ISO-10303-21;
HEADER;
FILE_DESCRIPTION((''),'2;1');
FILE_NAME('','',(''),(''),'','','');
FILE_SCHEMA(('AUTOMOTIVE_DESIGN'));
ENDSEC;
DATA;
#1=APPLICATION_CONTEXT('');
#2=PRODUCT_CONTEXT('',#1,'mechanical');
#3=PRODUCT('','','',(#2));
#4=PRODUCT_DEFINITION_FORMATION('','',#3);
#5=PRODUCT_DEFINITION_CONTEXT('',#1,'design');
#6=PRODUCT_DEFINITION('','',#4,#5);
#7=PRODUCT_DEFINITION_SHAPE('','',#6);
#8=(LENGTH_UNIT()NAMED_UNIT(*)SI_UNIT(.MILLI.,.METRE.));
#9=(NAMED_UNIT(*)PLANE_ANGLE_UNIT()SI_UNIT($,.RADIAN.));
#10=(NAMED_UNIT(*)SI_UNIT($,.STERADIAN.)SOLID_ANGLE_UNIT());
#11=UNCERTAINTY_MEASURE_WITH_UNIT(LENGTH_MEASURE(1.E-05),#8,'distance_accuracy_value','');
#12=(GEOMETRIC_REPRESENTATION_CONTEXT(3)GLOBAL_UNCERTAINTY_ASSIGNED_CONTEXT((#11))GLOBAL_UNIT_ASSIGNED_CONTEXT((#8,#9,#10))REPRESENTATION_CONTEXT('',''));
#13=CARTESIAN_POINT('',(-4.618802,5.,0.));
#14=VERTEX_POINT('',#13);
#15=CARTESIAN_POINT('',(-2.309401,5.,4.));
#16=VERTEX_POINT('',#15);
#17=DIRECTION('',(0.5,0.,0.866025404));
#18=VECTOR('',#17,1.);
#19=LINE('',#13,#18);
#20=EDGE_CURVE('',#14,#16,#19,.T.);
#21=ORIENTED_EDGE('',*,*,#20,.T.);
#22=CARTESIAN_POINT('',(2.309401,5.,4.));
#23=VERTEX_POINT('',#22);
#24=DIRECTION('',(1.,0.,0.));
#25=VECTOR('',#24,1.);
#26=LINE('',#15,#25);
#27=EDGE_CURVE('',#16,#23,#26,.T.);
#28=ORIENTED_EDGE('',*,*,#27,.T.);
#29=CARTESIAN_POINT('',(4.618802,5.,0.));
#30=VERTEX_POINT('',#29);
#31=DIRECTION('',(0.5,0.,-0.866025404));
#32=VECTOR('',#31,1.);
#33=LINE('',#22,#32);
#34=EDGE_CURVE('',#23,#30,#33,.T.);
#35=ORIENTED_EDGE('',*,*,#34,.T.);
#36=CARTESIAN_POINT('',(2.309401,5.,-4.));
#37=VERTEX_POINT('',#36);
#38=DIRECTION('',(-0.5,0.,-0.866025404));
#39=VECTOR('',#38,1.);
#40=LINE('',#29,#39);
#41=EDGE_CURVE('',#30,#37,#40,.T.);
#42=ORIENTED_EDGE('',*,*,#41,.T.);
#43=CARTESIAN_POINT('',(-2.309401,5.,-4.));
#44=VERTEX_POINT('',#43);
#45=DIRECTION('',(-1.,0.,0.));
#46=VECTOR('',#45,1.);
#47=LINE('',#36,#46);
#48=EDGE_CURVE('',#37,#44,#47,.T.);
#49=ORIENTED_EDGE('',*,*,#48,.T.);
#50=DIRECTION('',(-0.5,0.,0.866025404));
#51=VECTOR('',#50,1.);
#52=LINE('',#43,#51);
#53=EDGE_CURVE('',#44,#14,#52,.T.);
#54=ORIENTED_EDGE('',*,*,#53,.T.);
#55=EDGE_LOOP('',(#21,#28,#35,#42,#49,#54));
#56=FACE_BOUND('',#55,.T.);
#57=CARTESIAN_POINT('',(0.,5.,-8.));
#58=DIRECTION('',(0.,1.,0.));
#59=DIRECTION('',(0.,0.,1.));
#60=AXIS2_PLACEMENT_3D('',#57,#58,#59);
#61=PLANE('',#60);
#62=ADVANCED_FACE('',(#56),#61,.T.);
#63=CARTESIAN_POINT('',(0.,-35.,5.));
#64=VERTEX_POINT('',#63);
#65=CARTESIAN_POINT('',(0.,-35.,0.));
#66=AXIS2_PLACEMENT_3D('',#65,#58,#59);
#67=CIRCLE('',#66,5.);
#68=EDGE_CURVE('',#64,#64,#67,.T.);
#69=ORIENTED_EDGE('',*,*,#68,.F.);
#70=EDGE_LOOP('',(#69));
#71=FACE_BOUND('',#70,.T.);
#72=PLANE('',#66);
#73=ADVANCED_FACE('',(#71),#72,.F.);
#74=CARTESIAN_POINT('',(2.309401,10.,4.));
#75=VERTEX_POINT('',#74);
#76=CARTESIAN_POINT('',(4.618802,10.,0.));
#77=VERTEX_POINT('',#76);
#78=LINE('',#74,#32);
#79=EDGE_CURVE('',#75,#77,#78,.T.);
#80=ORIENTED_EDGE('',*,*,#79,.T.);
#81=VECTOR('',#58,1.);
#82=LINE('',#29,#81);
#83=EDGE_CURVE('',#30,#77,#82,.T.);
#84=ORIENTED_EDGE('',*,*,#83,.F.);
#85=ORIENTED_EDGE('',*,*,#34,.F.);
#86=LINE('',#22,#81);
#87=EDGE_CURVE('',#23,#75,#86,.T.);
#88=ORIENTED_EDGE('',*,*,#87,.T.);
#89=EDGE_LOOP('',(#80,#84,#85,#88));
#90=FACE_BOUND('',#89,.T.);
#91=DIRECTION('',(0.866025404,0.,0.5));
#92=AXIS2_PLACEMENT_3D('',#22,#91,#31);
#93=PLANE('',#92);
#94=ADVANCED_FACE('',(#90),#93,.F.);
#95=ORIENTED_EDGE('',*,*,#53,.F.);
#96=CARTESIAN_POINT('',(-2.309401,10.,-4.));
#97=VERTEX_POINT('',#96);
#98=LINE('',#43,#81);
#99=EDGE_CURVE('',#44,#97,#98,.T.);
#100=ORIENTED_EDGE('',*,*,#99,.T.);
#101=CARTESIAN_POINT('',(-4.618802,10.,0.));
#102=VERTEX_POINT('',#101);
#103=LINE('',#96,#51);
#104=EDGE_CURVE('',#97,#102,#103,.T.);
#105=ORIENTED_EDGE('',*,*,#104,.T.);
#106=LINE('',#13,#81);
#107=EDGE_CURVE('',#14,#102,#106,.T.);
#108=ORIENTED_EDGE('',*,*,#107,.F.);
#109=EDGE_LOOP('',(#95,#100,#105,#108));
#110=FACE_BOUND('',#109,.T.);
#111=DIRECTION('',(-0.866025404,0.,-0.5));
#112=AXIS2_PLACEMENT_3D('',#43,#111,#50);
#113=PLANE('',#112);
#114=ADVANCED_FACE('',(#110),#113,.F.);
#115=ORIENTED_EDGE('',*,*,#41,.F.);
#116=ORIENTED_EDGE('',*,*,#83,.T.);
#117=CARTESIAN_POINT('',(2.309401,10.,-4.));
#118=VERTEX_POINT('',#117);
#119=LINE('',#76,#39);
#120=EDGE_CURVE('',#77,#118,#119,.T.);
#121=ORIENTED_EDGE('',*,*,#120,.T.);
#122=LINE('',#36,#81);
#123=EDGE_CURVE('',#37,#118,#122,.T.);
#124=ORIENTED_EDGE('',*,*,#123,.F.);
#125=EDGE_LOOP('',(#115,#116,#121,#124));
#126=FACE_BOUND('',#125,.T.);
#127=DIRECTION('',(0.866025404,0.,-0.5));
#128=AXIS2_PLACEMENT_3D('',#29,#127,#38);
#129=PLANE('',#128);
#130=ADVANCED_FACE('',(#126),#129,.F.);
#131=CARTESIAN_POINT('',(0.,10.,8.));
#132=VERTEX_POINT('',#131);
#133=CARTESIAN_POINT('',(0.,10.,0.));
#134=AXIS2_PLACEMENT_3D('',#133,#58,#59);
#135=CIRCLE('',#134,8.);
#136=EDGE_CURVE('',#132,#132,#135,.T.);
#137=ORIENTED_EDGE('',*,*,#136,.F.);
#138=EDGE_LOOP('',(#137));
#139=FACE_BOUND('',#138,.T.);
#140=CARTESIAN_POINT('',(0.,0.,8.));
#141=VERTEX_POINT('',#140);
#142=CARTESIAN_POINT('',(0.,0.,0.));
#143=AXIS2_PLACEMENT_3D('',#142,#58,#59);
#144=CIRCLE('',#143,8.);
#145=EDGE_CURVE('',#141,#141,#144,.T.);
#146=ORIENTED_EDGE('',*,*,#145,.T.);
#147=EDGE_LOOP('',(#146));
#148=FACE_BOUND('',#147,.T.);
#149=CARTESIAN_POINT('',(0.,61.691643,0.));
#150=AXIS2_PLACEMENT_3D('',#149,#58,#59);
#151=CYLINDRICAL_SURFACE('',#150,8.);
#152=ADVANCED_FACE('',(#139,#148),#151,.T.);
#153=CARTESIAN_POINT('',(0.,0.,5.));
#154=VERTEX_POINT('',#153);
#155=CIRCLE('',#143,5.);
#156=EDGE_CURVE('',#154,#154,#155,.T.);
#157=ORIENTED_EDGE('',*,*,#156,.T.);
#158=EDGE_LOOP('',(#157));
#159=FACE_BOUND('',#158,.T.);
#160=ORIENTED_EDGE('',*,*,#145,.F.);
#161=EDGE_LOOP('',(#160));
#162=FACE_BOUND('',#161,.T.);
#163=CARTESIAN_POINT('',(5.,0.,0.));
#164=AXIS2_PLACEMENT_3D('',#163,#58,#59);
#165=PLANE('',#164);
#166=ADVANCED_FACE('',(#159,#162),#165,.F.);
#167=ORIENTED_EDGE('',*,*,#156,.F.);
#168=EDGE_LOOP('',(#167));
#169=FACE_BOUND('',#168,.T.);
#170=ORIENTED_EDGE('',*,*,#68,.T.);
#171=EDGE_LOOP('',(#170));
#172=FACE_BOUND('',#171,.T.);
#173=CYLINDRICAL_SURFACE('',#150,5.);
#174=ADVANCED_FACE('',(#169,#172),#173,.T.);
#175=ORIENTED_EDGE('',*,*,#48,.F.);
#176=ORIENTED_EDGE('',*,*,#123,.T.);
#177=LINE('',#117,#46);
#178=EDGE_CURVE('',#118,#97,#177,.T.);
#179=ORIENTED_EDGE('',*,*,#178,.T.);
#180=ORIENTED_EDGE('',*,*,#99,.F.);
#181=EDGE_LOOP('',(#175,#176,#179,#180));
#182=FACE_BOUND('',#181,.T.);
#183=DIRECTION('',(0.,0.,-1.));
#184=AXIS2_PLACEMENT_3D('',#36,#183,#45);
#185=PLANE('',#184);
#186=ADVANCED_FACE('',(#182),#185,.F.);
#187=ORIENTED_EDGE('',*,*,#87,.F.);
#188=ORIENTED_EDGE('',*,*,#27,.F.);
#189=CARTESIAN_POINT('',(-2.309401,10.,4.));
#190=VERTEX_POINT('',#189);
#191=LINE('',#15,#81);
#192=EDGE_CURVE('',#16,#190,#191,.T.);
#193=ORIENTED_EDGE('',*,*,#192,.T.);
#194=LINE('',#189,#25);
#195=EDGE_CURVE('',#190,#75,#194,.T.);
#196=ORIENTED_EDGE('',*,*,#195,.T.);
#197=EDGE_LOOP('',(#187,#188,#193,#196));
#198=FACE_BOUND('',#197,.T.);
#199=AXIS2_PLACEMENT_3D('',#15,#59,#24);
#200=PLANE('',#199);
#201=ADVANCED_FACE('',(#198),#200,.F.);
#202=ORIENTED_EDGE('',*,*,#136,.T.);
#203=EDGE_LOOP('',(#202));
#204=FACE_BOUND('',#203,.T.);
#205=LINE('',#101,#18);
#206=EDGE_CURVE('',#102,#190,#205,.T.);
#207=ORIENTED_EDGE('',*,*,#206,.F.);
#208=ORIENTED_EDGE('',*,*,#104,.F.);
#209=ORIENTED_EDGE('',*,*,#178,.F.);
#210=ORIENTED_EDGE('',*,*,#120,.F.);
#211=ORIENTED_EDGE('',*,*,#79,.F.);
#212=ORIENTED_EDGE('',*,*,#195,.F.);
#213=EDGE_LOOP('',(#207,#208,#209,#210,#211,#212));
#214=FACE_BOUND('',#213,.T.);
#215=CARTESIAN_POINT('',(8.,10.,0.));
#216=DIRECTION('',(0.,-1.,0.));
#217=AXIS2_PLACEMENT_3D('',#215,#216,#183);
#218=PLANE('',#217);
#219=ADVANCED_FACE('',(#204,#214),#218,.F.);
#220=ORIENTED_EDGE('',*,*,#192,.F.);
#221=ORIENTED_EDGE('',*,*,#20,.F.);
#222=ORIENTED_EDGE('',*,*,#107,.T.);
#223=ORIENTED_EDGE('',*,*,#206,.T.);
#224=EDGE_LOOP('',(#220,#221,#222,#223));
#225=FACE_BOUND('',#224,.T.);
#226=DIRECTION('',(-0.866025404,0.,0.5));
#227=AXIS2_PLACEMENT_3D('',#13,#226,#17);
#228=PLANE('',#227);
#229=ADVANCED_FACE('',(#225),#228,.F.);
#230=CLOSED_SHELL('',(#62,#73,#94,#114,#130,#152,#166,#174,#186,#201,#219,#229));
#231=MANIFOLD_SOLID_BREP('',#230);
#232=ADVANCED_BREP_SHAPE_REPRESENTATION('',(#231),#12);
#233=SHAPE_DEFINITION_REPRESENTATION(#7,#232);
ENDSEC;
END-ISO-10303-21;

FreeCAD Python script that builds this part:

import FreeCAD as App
import Part
import Sketcher
Q = App.Units.Quantity

doc = App.newDocument("Part")
body = doc.addObject("PartDesign::Body", "Body")

# Sketch on XY plane
sketch1 = body.newObject("Sketcher::SketchObject", "Sketch")
sketch1.AttachmentSupport = (doc.getObject("XY_Plane"), [""])
sketch1.MapMode = "FlatFace"
sketch1.addGeometry([
    Part.LineSegment(App.Vector(0, -35, 0), App.Vector(5, -35, 0)),  # 0
    Part.LineSegment(App.Vector(5, -35, 0), App.Vector(5, 0, 0)),  # 1
    Part.LineSegment(App.Vector(5, 0, 0), App.Vector(8, 0, 0)),  # 2
    Part.LineSegment(App.Vector(8, 0, 0), App.Vector(8, 10, 0)),  # 3
    Part.LineSegment(App.Vector(8, 10, 0), App.Vector(0, 10, 0)),  # 4
    Part.LineSegment(App.Vector(0, 10, 0), App.Vector(0, -35, 0)),  # 5
], False)
sketch1.addConstraint([
    Sketcher.Constraint("Coincident", 0, 2, 1, 1),
    Sketcher.Constraint("Coincident", 1, 2, 2, 1),
    Sketcher.Constraint("Coincident", 2, 2, 3, 1),
    Sketcher.Constraint("Coincident", 3, 2, 4, 1),
    Sketcher.Constraint("Coincident", 4, 2, 5, 1),
    Sketcher.Constraint("Coincident", 5, 2, 0, 1),
    Sketcher.Constraint("Horizontal", 0),
    Sketcher.Constraint("Vertical", 1),
    Sketcher.Constraint("Horizontal", 2),
    Sketcher.Constraint("Vertical", 3),
    Sketcher.Constraint("Horizontal", 4),
    Sketcher.Constraint("Vertical", 5),
    Sketcher.Constraint("PointOnObject", 1, 2, -1),
    Sketcher.Constraint("PointOnObject", 4, 2, -2),
    Sketcher.Constraint("DistanceX", 0, 1, 0, 2, 5.0),
    Sketcher.Constraint("DistanceX", 2, 1, 2, 2, 3.0),
    Sketcher.Constraint("DistanceY", 1, 1, 1, 2, 35.0),
    Sketcher.Constraint("DistanceY", 3, 1, 3, 2, 10.0),
])
revolution = body.newObject("PartDesign::Revolution", "Revolution")
revolution.Profile = sketch1
revolution.ReferenceAxis = (sketch1, ["V_Axis"])
revolution.Angle = 360

# Sketch on XZ plane
sketch2 = body.newObject("Sketcher::SketchObject", "Sketch001")
sketch2.AttachmentSupport = (doc.getObject("XZ_Plane"), [""])
sketch2.MapMode = "FlatFace"
sketch2.AttachmentOffset = App.Placement(App.Vector(0, 0, -10), App.Rotation())
sketch2.addGeometry([
    Part.LineSegment(App.Vector(2.3, -4, 0), App.Vector(-2.3, -4, 0)),  # 0
    Part.LineSegment(App.Vector(-2.3, -4, 0), App.Vector(-4.6, 0, 0)),  # 1
    Part.LineSegment(App.Vector(-4.6, 0, 0), App.Vector(-2.3, 4, 0)),  # 2
    Part.LineSegment(App.Vector(-2.3, 4, 0), App.Vector(2.3, 4, 0)),  # 3
    Part.LineSegment(App.Vector(2.3, 4, 0), App.Vector(4.6, 0, 0)),  # 4
    Part.LineSegment(App.Vector(4.6, 0, 0), App.Vector(2.3, -4, 0)),  # 5
], False)
sketch2.addConstraint([
    Sketcher.Constraint("Coincident", 0, 2, 1, 1),
    Sketcher.Constraint("Coincident", 1, 2, 2, 1),
    Sketcher.Constraint("Coincident", 2, 2, 3, 1),
    Sketcher.Constraint("Coincident", 3, 2, 4, 1),
    Sketcher.Constraint("Coincident", 4, 2, 5, 1),
    Sketcher.Constraint("Coincident", 5, 2, 0, 1),
    Sketcher.Constraint("Horizontal", 0),
    Sketcher.Constraint("Horizontal", 3),
    Sketcher.Constraint("Symmetric", 0, 2, 3, 2, -1, 1),
    Sketcher.Constraint("Symmetric", 1, 2, 4, 2, -1, 1),
    Sketcher.Constraint("PointOnObject", 1, 2, -1),
    Sketcher.Constraint("Parallel", 2, 5),
    Sketcher.Constraint("Vertical", 0, 2, 2, 2),
    Sketcher.Constraint("Angle", 1, Q("120 deg")),
    Sketcher.Constraint("DistanceY", 0, 2, -1, 1, 4.0),
    Sketcher.Constraint("DistanceX", 0, 2, -1, 1, 2.309401),
])
pocket1 = body.newObject("PartDesign::Pocket", "Pocket")
pocket1.Profile = sketch2
pocket1.Length = 5
pocket1.Reversed = True

doc.recompute()
